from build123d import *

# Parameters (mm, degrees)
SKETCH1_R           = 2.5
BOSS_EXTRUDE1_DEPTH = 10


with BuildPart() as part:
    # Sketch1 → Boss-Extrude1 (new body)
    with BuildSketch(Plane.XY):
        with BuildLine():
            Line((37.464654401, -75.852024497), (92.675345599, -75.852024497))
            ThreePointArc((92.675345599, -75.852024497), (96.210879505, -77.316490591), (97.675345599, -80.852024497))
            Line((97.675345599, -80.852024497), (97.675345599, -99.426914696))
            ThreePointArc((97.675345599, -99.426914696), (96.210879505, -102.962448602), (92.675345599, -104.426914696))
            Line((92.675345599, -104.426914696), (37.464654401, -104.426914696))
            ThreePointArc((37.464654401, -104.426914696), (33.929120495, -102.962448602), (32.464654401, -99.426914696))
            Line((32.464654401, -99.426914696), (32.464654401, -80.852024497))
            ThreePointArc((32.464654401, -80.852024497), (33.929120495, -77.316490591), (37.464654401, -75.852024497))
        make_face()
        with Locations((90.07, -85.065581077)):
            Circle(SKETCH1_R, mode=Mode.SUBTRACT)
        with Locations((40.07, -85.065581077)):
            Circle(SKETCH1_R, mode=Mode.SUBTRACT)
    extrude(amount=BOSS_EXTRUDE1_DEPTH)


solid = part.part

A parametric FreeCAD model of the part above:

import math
import FreeCAD as App
import Part
import Sketcher

V = App.Vector

doc = App.newDocument("Part")
body = doc.addObject("PartDesign::Body", "Body")

# Sketch on XY plane
sketch1 = doc.addObject("Sketcher::SketchObject", "Sketch")
body.addObject(sketch1)
sketch1.AttachmentSupport = (doc.XY_Plane, [""])
sketch1.MapMode = "FlatFace"
sketch1.addGeometry([
    Part.LineSegment(V(92.7, -75.9, 0), V(37.5, -75.9, 0)),  # 0
    Part.ArcOfCircle(Part.Circle(V(37.5, -80.9, 0), V(0, 0, 1), 5), math.radians(90), math.radians(180)),  # 1
    Part.LineSegment(V(32.5, -80.9, 0), V(32.5, -99.4, 0)),  # 2
    Part.ArcOfCircle(Part.Circle(V(37.5, -99.4, 0), V(0, 0, 1), 5), math.radians(180), math.radians(270)),  # 3
    Part.LineSegment(V(37.5, -104.4, 0), V(92.7, -104.4, 0)),  # 4
    Part.ArcOfCircle(Part.Circle(V(92.7, -99.4, 0), V(0, 0, 1), 5), math.radians(-90), math.radians(0)),  # 5
    Part.LineSegment(V(97.7, -99.4, 0), V(97.7, -80.9, 0)),  # 6
    Part.ArcOfCircle(Part.Circle(V(92.7, -80.9, 0), V(0, 0, 1), 5), math.radians(0), math.radians(90)),  # 7
    Part.Circle(V(90.1, -85.1, 0), V(0, 0, 1), 2.5),  # 8
    Part.Circle(V(40.1, -85.1, 0), V(0, 0, 1), 2.5),  # 9
], False)
sketch1.addConstraint([
    Sketcher.Constraint("Tangent", 0, 2, 1, 1),
    Sketcher.Constraint("Tangent", 1, 2, 2, 1),
    Sketcher.Constraint("Tangent", 2, 2, 3, 1),
    Sketcher.Constraint("Tangent", 3, 2, 4, 1),
    Sketcher.Constraint("Tangent", 4, 2, 5, 1),
    Sketcher.Constraint("Tangent", 5, 2, 6, 1),
    Sketcher.Constraint("Tangent", 6, 2, 7, 1),
    Sketcher.Constraint("Tangent", 7, 2, 0, 1),
    Sketcher.Constraint("Horizontal", 0),
    Sketcher.Constraint("Vertical", 2),
    Sketcher.Constraint("Horizontal", 4),
    Sketcher.Constraint("Vertical", 6),
    Sketcher.Constraint("Equal", 1, 3),
    Sketcher.Constraint("Equal", 3, 5),
    Sketcher.Constraint("Equal", 5, 7),
    Sketcher.Constraint("Equal", 8, 9),
    Sketcher.Constraint("Horizontal", 8, 3, 9, 3),
    Sketcher.Constraint("Diameter", 8, 5.0),
    Sketcher.Constraint("Radius", 1, 5.0),
    Sketcher.Constraint("DistanceX", 9, 3, 8, 3, 50.0),
    Sketcher.Constraint("DistanceX", -1, 1, 8, 3, 90.07),
    Sketcher.Constraint("DistanceX", 0, 2, 0, 1, 55.210691),
    Sketcher.Constraint("DistanceY", 2, 2, 2, 1, 18.57489),
    Sketcher.Constraint("DistanceY", 8, 3, -1, 1, 85.065581),
    Sketcher.Constraint("DistanceX", -1, 1, 1, 3, 37.464654),
    Sketcher.Constraint("DistanceY", 1, 3, -1, 1, 80.852024),
])
pad1 = doc.addObject("PartDesign::Pad", "Pad")
body.addObject(pad1)
pad1.Profile = sketch1
pad1.Length = 10

doc.recompute()
